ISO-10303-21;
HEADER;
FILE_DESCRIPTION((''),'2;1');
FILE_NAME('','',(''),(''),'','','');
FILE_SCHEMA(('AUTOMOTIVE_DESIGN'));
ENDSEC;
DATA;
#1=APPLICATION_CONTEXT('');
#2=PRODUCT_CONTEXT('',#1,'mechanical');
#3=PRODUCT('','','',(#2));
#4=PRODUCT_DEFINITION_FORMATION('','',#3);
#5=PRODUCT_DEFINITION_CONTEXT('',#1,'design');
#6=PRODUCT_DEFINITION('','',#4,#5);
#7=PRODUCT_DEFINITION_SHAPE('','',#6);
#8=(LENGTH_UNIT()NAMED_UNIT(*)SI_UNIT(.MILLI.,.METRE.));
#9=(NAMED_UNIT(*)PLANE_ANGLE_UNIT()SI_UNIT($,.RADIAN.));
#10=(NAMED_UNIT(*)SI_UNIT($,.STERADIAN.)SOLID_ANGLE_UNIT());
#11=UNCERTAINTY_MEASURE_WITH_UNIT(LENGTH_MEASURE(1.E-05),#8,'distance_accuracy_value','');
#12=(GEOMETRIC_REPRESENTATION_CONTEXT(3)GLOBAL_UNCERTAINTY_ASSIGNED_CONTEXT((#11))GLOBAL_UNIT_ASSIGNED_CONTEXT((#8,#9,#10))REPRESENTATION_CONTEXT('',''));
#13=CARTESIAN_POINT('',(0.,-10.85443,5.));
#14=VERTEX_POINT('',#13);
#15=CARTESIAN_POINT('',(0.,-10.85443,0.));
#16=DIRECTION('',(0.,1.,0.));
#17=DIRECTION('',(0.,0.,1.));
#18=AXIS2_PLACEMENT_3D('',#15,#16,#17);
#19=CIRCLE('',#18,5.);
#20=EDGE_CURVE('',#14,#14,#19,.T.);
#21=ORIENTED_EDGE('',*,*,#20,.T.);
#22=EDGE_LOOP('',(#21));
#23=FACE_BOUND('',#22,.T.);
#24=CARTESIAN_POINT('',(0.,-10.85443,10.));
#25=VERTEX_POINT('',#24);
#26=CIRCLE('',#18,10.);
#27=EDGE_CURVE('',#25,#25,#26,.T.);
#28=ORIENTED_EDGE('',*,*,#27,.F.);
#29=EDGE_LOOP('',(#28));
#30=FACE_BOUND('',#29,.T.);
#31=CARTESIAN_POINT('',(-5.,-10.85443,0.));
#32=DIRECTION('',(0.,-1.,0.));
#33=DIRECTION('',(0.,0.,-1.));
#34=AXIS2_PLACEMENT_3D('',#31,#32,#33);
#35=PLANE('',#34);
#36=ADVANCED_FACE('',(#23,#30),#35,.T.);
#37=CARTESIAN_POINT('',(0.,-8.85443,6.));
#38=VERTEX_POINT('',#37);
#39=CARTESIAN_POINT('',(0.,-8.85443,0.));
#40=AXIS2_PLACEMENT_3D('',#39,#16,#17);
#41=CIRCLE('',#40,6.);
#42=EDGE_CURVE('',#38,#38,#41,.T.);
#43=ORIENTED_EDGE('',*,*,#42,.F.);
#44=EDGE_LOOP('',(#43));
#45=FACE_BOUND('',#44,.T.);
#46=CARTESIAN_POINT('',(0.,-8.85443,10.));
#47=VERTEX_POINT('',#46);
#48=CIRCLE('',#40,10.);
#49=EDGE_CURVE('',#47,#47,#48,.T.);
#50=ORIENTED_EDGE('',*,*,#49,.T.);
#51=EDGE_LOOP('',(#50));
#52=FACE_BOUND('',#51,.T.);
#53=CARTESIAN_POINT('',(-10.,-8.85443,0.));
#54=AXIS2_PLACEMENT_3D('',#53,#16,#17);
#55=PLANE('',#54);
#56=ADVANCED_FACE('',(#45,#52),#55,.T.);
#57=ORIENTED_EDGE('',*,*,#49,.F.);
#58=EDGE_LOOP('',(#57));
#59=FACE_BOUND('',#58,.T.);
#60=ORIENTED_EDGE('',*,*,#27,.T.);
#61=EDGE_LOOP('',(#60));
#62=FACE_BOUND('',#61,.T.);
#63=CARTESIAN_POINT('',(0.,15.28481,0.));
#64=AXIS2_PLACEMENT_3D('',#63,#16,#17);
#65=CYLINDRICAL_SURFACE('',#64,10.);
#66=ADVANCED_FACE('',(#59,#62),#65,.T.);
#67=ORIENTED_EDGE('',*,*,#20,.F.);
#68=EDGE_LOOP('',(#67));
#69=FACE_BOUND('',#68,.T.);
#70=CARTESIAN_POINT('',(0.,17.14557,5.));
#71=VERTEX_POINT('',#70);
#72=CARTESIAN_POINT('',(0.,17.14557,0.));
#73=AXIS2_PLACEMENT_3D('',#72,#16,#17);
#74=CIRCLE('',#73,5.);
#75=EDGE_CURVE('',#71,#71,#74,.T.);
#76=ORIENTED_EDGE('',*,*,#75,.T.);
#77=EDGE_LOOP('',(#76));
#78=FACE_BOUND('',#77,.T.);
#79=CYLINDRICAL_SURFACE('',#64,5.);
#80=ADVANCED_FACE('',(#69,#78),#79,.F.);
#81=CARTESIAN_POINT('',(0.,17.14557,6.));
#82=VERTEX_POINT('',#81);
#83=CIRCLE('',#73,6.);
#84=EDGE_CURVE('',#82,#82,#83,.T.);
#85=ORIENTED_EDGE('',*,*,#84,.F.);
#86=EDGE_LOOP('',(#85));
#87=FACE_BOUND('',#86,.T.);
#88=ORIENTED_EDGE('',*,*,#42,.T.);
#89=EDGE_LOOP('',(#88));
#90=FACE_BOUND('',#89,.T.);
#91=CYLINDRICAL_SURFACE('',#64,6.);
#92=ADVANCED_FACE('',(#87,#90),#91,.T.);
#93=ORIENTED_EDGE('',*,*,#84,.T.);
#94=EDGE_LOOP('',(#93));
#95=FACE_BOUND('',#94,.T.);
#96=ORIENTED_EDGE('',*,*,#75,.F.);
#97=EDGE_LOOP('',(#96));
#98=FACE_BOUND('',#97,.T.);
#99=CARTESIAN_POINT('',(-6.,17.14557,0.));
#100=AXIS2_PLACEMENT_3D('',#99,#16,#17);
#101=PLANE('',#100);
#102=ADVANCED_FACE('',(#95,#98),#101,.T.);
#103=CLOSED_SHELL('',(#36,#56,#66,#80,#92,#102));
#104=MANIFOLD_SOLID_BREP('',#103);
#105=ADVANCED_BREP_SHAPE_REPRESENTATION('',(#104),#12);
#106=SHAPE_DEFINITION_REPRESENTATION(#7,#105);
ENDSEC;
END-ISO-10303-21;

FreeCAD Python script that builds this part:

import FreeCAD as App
import Part
import Sketcher
from FreeCAD import Vector
Q = App.Units.Quantity


def add_polygon(sketch, points):
    """Adds a closed chain of lines whose ends are joined by coincident constraints."""
    first, n = sketch.GeometryCount, len(points)
    for a, b in zip(points, points[1:] + points[:1]):
        sketch.addGeometry(Part.LineSegment(App.Vector(*a, 0), App.Vector(*b, 0)), False)
    for i in range(n):
        sketch.addConstraint(Sketcher.Constraint("Coincident", first + i, 2, first + (i + 1) % n, 1))

doc = App.newDocument("Part")
body = doc.addObject("PartDesign::Body", "Body")

# Sketch on XY plane
sketch1 = body.newObject("Sketcher::SketchObject", "Sketch")
sketch1.AttachmentSupport = (doc.getObject("XY_Plane"), [""])
sketch1.MapMode = "FlatFace"
add_polygon(sketch1, [(-5, -10.85443), (-5, 17.14557), (-6, 17.14557), (-6, -8.85443), (-10, -8.85443), (-10, -10.85443)])  # lines 0-5
sketch1.addConstraint(Sketcher.Constraint("Vertical", 0))
sketch1.addConstraint(Sketcher.Constraint("Horizontal", 1))
sketch1.addConstraint(Sketcher.Constraint("Vertical", 2))
sketch1.addConstraint(Sketcher.Constraint("Horizontal", 3))
sketch1.addConstraint(Sketcher.Constraint("Vertical", 4))
sketch1.addConstraint(Sketcher.Constraint("Horizontal", 5))
sketch1.addConstraint(Sketcher.Constraint("DistanceX", 1, 2, 1, 1, Q("1 mm")))
sketch1.addConstraint(Sketcher.Constraint("DistanceX", 3, 2, 3, 1, Q("4 mm")))
sketch1.addConstraint(Sketcher.Constraint("DistanceY", 0, 1, 0, 2, Q("28 mm")))
sketch1.addConstraint(Sketcher.Constraint("DistanceY", 2, 2, 2, 1, Q("26 mm")))
sketch1.addConstraint(Sketcher.Constraint("DistanceX", 0, 2, -1, 1, Q("5 mm")))
sketch1.addConstraint(Sketcher.Constraint("DistanceY", -1, 1, 0, 2, Q("17.14557 mm")))
revolution = body.newObject("PartDesign::Revolution", "Revolution")
revolution.Profile = sketch1
revolution.ReferenceAxis = (sketch1, ["V_Axis"])
revolution.Angle = 360

doc.recompute()
